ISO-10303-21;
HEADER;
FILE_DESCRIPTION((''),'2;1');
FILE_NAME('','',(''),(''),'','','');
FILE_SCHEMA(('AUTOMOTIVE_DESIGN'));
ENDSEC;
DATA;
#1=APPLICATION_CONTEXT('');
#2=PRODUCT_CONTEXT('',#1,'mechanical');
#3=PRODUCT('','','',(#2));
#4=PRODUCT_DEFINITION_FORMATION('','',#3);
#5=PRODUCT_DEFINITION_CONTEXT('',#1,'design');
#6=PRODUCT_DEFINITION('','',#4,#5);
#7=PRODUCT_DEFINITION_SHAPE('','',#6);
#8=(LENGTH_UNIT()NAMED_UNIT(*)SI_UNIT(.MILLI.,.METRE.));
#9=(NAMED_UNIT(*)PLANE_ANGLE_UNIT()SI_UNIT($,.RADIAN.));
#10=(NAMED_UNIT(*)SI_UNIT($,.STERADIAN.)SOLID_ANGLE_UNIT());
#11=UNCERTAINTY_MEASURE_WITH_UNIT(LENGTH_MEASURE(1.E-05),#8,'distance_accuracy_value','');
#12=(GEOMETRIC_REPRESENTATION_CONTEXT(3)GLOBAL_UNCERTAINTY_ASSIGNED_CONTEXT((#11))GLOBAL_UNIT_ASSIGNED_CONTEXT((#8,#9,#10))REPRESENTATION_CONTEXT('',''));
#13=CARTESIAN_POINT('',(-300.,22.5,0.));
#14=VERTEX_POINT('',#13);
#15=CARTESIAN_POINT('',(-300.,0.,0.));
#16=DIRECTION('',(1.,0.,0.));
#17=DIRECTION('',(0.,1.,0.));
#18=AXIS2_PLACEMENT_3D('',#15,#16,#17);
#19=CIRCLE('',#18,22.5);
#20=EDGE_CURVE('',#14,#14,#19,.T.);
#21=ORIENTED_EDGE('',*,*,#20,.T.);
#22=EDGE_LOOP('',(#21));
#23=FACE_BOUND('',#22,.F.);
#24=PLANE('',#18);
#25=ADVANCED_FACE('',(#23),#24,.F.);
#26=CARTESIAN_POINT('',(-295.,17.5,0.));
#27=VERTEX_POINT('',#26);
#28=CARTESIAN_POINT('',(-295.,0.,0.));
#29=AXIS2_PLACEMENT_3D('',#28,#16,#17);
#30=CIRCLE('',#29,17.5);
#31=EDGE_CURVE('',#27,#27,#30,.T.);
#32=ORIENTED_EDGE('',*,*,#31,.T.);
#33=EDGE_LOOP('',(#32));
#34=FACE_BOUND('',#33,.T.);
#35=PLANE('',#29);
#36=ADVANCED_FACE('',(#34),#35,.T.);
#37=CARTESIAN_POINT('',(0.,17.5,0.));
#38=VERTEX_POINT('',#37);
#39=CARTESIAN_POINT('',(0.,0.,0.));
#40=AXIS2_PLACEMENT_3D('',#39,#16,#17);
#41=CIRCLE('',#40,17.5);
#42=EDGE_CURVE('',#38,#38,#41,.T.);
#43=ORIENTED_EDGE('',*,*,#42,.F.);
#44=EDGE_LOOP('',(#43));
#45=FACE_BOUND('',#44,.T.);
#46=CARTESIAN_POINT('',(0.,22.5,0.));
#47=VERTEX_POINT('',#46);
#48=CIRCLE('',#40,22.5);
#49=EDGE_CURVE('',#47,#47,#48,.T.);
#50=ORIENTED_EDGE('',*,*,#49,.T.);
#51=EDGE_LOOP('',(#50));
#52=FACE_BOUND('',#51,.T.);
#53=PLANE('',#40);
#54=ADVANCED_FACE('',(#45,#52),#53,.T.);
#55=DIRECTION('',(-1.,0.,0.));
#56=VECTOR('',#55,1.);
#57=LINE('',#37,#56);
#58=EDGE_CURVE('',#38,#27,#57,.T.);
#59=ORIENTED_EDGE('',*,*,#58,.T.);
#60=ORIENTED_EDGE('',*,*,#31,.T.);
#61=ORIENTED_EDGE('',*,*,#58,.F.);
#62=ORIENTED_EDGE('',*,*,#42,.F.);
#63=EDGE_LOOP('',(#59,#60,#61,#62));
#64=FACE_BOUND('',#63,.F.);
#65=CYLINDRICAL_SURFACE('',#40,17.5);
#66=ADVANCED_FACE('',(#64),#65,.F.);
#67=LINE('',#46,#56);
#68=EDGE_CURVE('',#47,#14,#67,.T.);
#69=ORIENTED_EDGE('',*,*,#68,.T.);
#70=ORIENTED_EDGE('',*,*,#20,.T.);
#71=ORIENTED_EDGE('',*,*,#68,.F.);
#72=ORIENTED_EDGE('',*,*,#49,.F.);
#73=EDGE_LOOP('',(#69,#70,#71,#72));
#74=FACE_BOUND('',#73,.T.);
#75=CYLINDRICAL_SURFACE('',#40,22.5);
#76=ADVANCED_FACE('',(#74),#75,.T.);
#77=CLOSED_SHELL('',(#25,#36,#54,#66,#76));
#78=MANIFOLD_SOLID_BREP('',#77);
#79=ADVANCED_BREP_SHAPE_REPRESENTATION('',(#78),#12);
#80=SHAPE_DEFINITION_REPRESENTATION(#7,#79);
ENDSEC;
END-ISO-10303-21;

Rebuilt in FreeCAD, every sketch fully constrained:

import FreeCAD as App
import Part
import Sketcher


def faces_at(feature, points):
    """Names of the faces that lie closest to the given points."""
    faces = feature.Shape.Faces
    near = lambda p: min(range(len(faces)), key=lambda i: faces[i].distToShape(Part.Vertex(*p))[0])
    return sorted({f"Face{near(p) + 1}" for p in points})

doc = App.newDocument("Part")
body = doc.addObject("PartDesign::Body", "Body")

# Sketch on YZ plane
sketch1 = body.newObject("Sketcher::SketchObject", "Sketch")
sketch1.AttachmentSupport = (doc.getObject("YZ_Plane"), [""])
sketch1.MapMode = "FlatFace"
sketch1.addGeometry(Part.Circle(App.Vector(0, 0, 0), App.Vector(0, 0, 1), 22.5), False)
sketch1.addConstraint(Sketcher.Constraint("Coincident", 0, 3, -1, 1))
sketch1.addConstraint(Sketcher.Constraint("Diameter", 0, 45.0))
pad1 = body.newObject("PartDesign::Pad", "Pad")
pad1.Profile = sketch1
pad1.Length = 300
pad1.Reversed = True
doc.recompute()

thickness = body.newObject("PartDesign::Thickness", "Thickness")
thickness.Base = (pad1, faces_at(pad1, [(0, 0, 0)]))
thickness.Value = 5
thickness.Reversed = True
thickness.Join = "Arc"

doc.recompute()
